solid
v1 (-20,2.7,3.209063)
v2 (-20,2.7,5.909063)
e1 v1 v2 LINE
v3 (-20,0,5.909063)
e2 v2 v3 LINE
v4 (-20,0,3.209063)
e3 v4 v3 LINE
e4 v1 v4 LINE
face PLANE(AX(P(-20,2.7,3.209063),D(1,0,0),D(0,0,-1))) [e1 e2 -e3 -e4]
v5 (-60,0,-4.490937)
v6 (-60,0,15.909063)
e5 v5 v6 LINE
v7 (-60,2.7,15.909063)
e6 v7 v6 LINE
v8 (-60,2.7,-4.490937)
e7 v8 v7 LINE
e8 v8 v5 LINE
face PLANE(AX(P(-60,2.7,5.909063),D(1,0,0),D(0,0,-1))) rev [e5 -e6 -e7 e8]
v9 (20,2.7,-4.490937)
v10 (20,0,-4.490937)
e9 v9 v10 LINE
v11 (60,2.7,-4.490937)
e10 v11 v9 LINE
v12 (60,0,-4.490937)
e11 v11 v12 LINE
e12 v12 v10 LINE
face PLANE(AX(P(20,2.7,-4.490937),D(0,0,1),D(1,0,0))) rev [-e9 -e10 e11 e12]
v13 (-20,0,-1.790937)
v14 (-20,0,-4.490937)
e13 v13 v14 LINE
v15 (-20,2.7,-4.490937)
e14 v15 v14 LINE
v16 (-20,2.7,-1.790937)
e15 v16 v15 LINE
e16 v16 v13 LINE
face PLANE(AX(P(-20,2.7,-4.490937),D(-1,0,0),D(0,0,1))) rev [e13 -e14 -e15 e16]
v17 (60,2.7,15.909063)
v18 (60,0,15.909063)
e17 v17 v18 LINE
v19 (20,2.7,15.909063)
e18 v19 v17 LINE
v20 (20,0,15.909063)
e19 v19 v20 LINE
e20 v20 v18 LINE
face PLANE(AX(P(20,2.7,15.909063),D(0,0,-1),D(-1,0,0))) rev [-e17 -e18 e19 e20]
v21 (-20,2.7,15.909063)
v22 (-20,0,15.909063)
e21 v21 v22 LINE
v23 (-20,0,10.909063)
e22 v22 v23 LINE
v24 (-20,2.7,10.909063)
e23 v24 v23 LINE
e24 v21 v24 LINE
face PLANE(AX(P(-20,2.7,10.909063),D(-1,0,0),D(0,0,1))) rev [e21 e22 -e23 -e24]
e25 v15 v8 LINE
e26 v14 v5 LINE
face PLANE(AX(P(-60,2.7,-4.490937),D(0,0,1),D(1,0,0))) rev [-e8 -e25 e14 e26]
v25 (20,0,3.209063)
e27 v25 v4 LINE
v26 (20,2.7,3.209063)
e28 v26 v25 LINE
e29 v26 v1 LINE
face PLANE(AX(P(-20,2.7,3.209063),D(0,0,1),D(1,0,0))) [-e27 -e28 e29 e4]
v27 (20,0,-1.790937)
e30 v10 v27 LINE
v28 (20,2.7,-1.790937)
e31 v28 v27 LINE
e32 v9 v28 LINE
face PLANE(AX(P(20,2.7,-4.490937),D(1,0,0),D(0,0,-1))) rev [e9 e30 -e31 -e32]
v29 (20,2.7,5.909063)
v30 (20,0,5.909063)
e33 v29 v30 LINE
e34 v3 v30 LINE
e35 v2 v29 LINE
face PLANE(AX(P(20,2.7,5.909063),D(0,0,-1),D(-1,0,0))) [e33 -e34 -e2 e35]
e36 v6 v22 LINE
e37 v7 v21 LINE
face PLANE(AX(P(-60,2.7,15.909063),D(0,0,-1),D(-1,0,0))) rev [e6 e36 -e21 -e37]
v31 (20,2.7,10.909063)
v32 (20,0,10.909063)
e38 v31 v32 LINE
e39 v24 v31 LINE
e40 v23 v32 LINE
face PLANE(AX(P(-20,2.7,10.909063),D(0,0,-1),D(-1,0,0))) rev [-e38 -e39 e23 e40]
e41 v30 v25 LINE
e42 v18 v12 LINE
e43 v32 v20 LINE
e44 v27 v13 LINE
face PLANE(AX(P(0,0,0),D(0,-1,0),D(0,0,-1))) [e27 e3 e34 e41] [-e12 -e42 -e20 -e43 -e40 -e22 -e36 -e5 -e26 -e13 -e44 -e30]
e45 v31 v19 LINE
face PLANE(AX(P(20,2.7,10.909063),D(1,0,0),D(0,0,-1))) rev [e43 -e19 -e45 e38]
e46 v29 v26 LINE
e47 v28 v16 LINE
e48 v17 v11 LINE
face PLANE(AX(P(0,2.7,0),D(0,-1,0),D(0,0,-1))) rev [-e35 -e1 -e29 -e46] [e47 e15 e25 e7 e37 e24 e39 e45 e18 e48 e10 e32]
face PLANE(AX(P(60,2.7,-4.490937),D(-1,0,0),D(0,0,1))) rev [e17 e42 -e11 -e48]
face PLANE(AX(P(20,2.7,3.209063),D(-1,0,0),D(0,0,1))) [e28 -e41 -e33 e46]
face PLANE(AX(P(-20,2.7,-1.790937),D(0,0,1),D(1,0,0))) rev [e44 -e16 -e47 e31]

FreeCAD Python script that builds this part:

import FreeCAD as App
import Part
import Sketcher
from FreeCAD import Vector
Q = App.Units.Quantity


def add_polygon(sketch, points):
    """Adds a closed chain of lines whose ends are joined by coincident constraints."""
    first, n = sketch.GeometryCount, len(points)
    for a, b in zip(points, points[1:] + points[:1]):
        sketch.addGeometry(Part.LineSegment(App.Vector(*a, 0), App.Vector(*b, 0)), False)
    for i in range(n):
        sketch.addConstraint(Sketcher.Constraint("Coincident", first + i, 2, first + (i + 1) % n, 1))

doc = App.newDocument("Part")
body = doc.addObject("PartDesign::Body", "Body")

# Sketch on XZ plane
sketch1 = body.newObject("Sketcher::SketchObject", "Sketch")
sketch1.AttachmentSupport = (doc.getObject("XZ_Plane"), [""])
sketch1.MapMode = "FlatFace"
add_polygon(sketch1, [(20, -1.8), (-20, -1.8), (-20, -4.5), (-60, -4.5), (-60, 15.9), (-20, 15.9), (-20, 10.9), (20, 10.9), (20, 15.9), (60, 15.9), (60, -4.5), (20, -4.5)])  # lines 0-11
add_polygon(sketch1, [(-20, 5.9), (-20, 3.2), (20, 3.2), (20, 5.9)])  # lines 12-15
sketch1.addConstraint([
    Sketcher.Constraint("Horizontal", 0),
    Sketcher.Constraint("Vertical", 1),
    Sketcher.Constraint("Horizontal", 2),
    Sketcher.Constraint("Vertical", 3),
    Sketcher.Constraint("Horizontal", 4),
    Sketcher.Constraint("Vertical", 5),
    Sketcher.Constraint("Horizontal", 6),
    Sketcher.Constraint("Vertical", 7),
    Sketcher.Constraint("Horizontal", 8),
    Sketcher.Constraint("Vertical", 9),
    Sketcher.Constraint("Horizontal", 10),
    Sketcher.Constraint("Vertical", 11),
    Sketcher.Constraint("Vertical", 12),
    Sketcher.Constraint("Horizontal", 13),
    Sketcher.Constraint("Vertical", 14),
    Sketcher.Constraint("Horizontal", 15),
    Sketcher.Constraint("Symmetric", 4, 2, 7, 2, -2),
    Sketcher.Constraint("Symmetric", 2, 2, 9, 2, -2),
    Sketcher.Constraint("Vertical", 1, 2, 4, 2),
    Sketcher.Constraint("Vertical", 7, 2, 10, 2),
    Sketcher.Constraint("Vertical", 5, 2, 12, 2),
    Sketcher.Constraint("Vertical", 11, 2, 13, 2),
    Sketcher.Constraint("Equal", 0, 2),
    Sketcher.Constraint("Equal", 11, 12),
    Sketcher.Constraint("DistanceX", 0, 2, 0, 1, Q("40 mm")),
    Sketcher.Constraint("DistanceY", 5, 2, 5, 1, Q("5 mm")),
    Sketcher.Constraint("DistanceY", 1, 2, 1, 1, Q("2.7 mm")),
    Sketcher.Constraint("DistanceY", 3, 1, 3, 2, Q("20.4 mm")),
    Sketcher.Constraint("DistanceY", 0, 2, 12, 2, Q("5 mm")),
    Sketcher.Constraint("DistanceY", 0, 2, -1, 1, Q("1.790937 mm")),
])
pad1 = body.newObject("PartDesign::Pad", "Pad")
pad1.Profile = sketch1
pad1.Length = 2.7
pad1.Reversed = True

doc.recompute()
